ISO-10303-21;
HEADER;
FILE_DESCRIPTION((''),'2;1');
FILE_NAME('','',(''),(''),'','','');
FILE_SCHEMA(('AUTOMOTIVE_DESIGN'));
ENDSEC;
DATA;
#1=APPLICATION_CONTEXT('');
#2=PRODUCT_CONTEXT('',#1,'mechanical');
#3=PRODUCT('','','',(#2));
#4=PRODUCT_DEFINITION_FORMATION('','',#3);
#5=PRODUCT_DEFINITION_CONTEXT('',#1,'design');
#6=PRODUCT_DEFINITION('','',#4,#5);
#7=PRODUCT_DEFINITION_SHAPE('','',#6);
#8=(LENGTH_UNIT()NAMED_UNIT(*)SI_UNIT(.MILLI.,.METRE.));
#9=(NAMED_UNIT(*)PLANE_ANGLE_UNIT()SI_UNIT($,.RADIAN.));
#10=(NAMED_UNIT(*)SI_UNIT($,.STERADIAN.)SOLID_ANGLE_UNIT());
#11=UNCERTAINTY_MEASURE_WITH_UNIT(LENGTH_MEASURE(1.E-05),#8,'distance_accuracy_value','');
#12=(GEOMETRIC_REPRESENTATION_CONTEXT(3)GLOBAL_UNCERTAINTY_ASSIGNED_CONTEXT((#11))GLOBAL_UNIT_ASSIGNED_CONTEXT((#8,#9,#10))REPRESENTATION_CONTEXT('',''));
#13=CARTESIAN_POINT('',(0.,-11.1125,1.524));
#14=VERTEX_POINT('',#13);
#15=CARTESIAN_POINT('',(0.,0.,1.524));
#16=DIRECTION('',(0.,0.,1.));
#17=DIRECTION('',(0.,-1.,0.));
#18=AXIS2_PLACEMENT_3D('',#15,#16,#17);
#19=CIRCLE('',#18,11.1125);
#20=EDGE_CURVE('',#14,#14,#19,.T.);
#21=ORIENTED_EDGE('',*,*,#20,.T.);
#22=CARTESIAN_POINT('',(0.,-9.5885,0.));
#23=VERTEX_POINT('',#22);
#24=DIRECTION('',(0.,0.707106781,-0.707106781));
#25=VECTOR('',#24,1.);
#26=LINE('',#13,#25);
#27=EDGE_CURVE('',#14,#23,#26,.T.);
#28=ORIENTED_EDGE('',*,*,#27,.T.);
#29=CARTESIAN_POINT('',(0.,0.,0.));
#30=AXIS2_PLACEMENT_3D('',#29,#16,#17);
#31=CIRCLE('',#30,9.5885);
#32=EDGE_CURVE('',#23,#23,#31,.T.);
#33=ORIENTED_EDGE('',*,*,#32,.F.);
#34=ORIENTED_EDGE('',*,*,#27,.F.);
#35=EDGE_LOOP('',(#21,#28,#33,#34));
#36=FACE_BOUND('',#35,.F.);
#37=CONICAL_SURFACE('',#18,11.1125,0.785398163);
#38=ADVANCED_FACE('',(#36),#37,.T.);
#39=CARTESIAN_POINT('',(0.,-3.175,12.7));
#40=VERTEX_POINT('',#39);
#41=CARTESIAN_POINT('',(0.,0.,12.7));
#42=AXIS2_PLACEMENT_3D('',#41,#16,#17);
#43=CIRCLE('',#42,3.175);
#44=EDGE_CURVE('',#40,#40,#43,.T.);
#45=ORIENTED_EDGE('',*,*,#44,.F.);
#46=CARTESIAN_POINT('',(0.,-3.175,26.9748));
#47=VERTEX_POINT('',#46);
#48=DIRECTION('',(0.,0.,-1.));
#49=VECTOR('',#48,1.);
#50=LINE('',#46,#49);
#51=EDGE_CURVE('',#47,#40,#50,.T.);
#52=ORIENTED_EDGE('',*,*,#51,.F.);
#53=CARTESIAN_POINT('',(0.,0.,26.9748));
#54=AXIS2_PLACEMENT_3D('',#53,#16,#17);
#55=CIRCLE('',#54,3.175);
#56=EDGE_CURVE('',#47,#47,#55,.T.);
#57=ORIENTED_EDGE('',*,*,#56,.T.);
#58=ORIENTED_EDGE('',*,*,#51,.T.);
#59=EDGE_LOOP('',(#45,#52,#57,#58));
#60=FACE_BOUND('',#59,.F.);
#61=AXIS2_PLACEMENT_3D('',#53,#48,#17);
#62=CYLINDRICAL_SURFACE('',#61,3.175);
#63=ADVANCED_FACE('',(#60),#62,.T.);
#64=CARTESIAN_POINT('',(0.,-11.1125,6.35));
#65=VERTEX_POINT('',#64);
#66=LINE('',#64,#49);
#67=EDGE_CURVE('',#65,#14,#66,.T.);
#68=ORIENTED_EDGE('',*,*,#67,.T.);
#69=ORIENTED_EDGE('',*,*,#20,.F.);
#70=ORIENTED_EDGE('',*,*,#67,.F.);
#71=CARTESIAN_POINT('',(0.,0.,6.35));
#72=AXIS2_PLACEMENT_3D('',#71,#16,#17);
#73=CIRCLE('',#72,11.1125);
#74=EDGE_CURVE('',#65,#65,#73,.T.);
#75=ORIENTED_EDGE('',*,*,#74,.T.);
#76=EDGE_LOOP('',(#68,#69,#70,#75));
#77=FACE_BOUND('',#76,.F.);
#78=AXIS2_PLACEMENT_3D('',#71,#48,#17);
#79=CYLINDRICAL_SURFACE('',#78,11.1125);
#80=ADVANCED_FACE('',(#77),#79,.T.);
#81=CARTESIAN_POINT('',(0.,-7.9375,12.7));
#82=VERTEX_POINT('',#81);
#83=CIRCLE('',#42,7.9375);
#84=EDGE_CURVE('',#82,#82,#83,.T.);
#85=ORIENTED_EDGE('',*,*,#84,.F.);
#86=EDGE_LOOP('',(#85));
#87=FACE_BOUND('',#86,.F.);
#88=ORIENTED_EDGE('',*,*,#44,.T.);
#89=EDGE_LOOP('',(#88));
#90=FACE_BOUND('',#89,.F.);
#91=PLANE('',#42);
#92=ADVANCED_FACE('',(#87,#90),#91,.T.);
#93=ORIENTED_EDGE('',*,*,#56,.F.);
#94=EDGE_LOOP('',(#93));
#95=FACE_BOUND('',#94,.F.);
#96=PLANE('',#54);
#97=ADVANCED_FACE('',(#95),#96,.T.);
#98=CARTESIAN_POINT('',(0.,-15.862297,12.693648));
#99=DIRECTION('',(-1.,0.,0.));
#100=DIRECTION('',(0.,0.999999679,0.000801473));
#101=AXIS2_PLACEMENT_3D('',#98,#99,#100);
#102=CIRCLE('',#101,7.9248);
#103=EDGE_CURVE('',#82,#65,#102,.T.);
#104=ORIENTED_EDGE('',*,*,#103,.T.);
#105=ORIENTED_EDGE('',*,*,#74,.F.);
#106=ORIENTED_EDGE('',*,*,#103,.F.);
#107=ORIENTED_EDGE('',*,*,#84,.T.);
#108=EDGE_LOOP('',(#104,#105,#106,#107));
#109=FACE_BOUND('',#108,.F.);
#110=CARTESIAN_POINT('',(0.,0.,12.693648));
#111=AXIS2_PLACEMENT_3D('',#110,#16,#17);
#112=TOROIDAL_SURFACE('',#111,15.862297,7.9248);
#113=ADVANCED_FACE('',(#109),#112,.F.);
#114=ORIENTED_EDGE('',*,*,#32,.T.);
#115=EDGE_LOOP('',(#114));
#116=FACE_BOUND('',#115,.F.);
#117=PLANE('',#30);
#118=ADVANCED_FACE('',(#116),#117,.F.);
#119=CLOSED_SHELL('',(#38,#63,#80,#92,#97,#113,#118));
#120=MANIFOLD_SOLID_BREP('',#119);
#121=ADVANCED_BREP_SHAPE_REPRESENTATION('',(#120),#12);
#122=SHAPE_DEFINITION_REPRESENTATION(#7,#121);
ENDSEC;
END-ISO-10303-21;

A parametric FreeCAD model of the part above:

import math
import FreeCAD as App
import Part
import Sketcher

V = App.Vector
Q = App.Units.Quantity


def edges_at(feature, points):
    """Names of the edges that pass closest to the given points."""
    edges = feature.Shape.Edges
    near = lambda p: min(range(len(edges)), key=lambda i: edges[i].distToShape(Part.Vertex(*p))[0])
    return sorted({f"Edge{near(p) + 1}" for p in points})

doc = App.newDocument("Part")
body = doc.addObject("PartDesign::Body", "Body")

# Sketch on YZ plane
sketch1 = doc.addObject("Sketcher::SketchObject", "Sketch")
body.addObject(sketch1)
sketch1.AttachmentSupport = (doc.YZ_Plane, [""])
sketch1.MapMode = "FlatFace"
sketch1.addGeometry(Part.LineSegment(V(-11.1, 6.3, 0), V(-11.1, 0, 0)), False)
sketch1.addGeometry(Part.LineSegment(V(-11.1, 0, 0), V(0, 0, 0)), False)
sketch1.addGeometry(Part.LineSegment(V(0, 0, 0), V(0, 27, 0)), False)
sketch1.addGeometry(Part.LineSegment(V(0, 27, 0), V(-3.2, 27, 0)), False)
sketch1.addGeometry(Part.LineSegment(V(-3.2, 27, 0), V(-3.2, 12.7, 0)), False)
sketch1.addGeometry(Part.LineSegment(V(-3.2, 12.7, 0), V(-7.9, 12.7, 0)), False)
sketch1.addGeometry(Part.ArcOfCircle(Part.Circle(V(-15.9, 12.7, 0), V(0, 0, 1), 7.9), math.radians(-53), math.radians(0)), False)
sketch1.addConstraint(Sketcher.Constraint("Coincident", 0, 2, 1, 1))
sketch1.addConstraint(Sketcher.Constraint("Coincident", 1, 2, 2, 1))
sketch1.addConstraint(Sketcher.Constraint("Coincident", 2, 2, 3, 1))
sketch1.addConstraint(Sketcher.Constraint("Coincident", 3, 2, 4, 1))
sketch1.addConstraint(Sketcher.Constraint("Coincident", 4, 2, 5, 1))
sketch1.addConstraint(Sketcher.Constraint("Coincident", 5, 2, 6, 2))
sketch1.addConstraint(Sketcher.Constraint("Coincident", 6, 1, 0, 1))
sketch1.addConstraint(Sketcher.Constraint("Vertical", 0))
sketch1.addConstraint(Sketcher.Constraint("Horizontal", 1))
sketch1.addConstraint(Sketcher.Constraint("Vertical", 2))
sketch1.addConstraint(Sketcher.Constraint("Horizontal", 3))
sketch1.addConstraint(Sketcher.Constraint("Vertical", 4))
sketch1.addConstraint(Sketcher.Constraint("Horizontal", 5))
sketch1.addConstraint(Sketcher.Constraint("Coincident", 1, 2, -1, 1))
sketch1.addConstraint(Sketcher.Constraint("Radius", 6, Q("0.312 in")))
sketch1.addConstraint(Sketcher.Constraint("DistanceY", 0, 2, 0, 1, Q("0.25 in")))
sketch1.addConstraint(Sketcher.Constraint("DistanceY", -1, 1, 4, 2, Q("0.5 in")))
sketch1.addConstraint(Sketcher.Constraint("DistanceX", 1, 1, 1, 2, Q("0.4375 in")))
sketch1.addConstraint(Sketcher.Constraint("DistanceX", 3, 2, 3, 1, Q("0.125 in")))
sketch1.addConstraint(Sketcher.Constraint("DistanceX", 5, 2, 5, 1, Q("0.1875 in")))
sketch1.addConstraint(Sketcher.Constraint("DistanceY", 2, 1, 2, 2, Q("1.062 in")))
revolution = doc.addObject("PartDesign::Revolution", "Revolution")
body.addObject(revolution)
revolution.Profile = sketch1
revolution.ReferenceAxis = (sketch1, ["V_Axis"])
revolution.Angle = 360
doc.recompute()

chamfer = doc.addObject("PartDesign::Chamfer", "Chamfer")
body.addObject(chamfer)
chamfer.Base = (revolution, edges_at(revolution, [(0, 11.113, 0)]))
chamfer.ChamferType = "Two distances"
chamfer.Size = Q("0.06 in")
chamfer.Size2 = Q("0.06 in")

doc.recompute()
